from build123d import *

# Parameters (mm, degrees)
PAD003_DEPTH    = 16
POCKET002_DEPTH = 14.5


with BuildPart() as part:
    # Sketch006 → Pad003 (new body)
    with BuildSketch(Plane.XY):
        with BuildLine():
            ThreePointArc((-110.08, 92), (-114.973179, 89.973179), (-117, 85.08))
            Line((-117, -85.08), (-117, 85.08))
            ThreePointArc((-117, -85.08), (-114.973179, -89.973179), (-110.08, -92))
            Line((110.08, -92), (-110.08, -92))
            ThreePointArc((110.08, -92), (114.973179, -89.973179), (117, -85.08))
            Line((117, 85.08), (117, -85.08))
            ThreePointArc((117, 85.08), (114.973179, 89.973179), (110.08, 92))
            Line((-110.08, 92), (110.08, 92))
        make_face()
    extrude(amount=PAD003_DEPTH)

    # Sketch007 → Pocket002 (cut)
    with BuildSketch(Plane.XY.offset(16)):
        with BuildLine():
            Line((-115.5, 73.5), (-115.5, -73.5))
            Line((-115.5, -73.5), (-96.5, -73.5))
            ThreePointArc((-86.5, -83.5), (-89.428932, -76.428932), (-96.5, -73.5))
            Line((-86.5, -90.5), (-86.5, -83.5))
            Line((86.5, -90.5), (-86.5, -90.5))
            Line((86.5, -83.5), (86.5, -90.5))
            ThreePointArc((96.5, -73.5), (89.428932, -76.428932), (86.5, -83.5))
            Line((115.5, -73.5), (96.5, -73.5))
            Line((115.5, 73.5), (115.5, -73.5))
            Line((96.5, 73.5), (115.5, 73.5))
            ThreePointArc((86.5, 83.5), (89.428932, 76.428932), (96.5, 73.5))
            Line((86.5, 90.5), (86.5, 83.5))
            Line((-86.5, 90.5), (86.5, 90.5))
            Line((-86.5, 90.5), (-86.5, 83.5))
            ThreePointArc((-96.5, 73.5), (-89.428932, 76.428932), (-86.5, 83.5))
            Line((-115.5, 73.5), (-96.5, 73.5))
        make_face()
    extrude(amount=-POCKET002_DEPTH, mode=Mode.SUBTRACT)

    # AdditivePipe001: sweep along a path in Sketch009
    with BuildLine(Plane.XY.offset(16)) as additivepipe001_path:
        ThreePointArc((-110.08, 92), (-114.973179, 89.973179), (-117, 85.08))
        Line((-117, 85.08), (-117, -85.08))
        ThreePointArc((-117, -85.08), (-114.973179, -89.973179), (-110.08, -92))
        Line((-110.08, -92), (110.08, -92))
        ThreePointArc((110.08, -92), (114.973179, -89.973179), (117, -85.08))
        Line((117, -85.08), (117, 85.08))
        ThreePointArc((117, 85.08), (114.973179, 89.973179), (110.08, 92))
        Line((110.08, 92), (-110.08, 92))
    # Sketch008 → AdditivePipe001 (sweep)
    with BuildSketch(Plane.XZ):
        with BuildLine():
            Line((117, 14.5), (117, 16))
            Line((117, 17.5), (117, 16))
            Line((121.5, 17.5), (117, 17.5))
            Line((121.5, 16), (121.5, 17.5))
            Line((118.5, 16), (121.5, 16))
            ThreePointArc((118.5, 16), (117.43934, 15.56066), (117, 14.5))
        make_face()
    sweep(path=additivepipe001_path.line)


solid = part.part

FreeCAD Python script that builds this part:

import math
import FreeCAD as App
import Part
import Sketcher
from FreeCAD import Vector
Q = App.Units.Quantity

doc = App.newDocument("Part")
params = doc.addObject("Spreadsheet::Sheet", "Params")
for row, (alias, value) in enumerate([
    ("sketch1_radius", "6.92 mm"),
    ("pad1_length", "16 mm"),
    ("sketch2_radius", "9.999999 mm"),
    ("sketch2_width", "19 mm"),
    ("sketch2_width2", "173 mm"),
    ("sketch2_height", "147 mm"),
    ("sketch2_height2", "7 mm"),
    ("pocket1_length", "14.5 mm"),
    ("sketch3_radius", "1.500001 mm"),
    ("sketch3_width", "3 mm"),
    ("sketch4_radius", "6.92 mm"),
], start=1):
    params.set(f"A{row}", alias)
    params.set(f"B{row}", "=" + value)
    params.setAlias(f"B{row}", alias)

body = doc.addObject("PartDesign::Body", "Body")

sketch1 = body.newObject("Sketcher::SketchObject", "Sketch")
sketch1.AttachmentSupport = (doc.getObject("XY_Plane"), [""])
sketch1.MapMode = "FlatFace"
sketch1.addGeometry(Part.ArcOfCircle(Part.Circle(Vector(-110, 85, 0), Vector(0, 0, 1), 7), math.radians(90), math.radians(180)), False)
sketch1.addGeometry(Part.LineSegment(Vector(-117, 85, 0), Vector(-117, -85, 0)), False)
sketch1.addGeometry(Part.ArcOfCircle(Part.Circle(Vector(-110, -85, 0), Vector(0, 0, 1), 7), math.radians(180), math.radians(270)), False)
sketch1.addGeometry(Part.LineSegment(Vector(-110, -92, 0), Vector(110, -92, 0)), False)
sketch1.addGeometry(Part.ArcOfCircle(Part.Circle(Vector(110, -85, 0), Vector(0, 0, 1), 7), math.radians(-90), math.radians(0)), False)
sketch1.addGeometry(Part.LineSegment(Vector(117, -85, 0), Vector(117, 85, 0)), False)
sketch1.addGeometry(Part.ArcOfCircle(Part.Circle(Vector(110, 85, 0), Vector(0, 0, 1), 7), math.radians(0), math.radians(90)), False)
sketch1.addGeometry(Part.LineSegment(Vector(110, 92, 0), Vector(-110, 92, 0)), False)
sketch1.addConstraint(Sketcher.Constraint("Tangent", 0, 2, 1, 1))
sketch1.addConstraint(Sketcher.Constraint("Tangent", 1, 2, 2, 1))
sketch1.addConstraint(Sketcher.Constraint("Tangent", 2, 2, 3, 1))
sketch1.addConstraint(Sketcher.Constraint("Tangent", 3, 2, 4, 1))
sketch1.addConstraint(Sketcher.Constraint("Tangent", 4, 2, 5, 1))
sketch1.addConstraint(Sketcher.Constraint("Tangent", 5, 2, 6, 1))
sketch1.addConstraint(Sketcher.Constraint("Tangent", 6, 2, 7, 1))
sketch1.addConstraint(Sketcher.Constraint("Tangent", 7, 2, 0, 1))
sketch1.addConstraint(Sketcher.Constraint("Vertical", 1))
sketch1.addConstraint(Sketcher.Constraint("Horizontal", 3))
sketch1.addConstraint(Sketcher.Constraint("Vertical", 5))
sketch1.addConstraint(Sketcher.Constraint("Horizontal", 7))
sketch1.addConstraint(Sketcher.Constraint("Equal", 0, 2))
sketch1.addConstraint(Sketcher.Constraint("Equal", 2, 4))
sketch1.addConstraint(Sketcher.Constraint("Equal", 4, 6))
sketch1.addConstraint(Sketcher.Constraint("Symmetric", 0, 3, 4, 3, -1, 1))
sketch1.addConstraint(Sketcher.Constraint("Radius", 0, Q("6.92 mm")))
sketch1.addConstraint(Sketcher.Constraint("DistanceX", 0, 2, -1, 1, Q("117 mm")))
sketch1.addConstraint(Sketcher.Constraint("DistanceY", 2, 2, -1, 1, Q("92 mm")))
sketch1.setExpression("Constraints[16]", "Params.sketch1_radius")
pad1 = body.newObject("PartDesign::Pad", "Pad")
pad1.Profile = sketch1
pad1.setExpression("Length", "Params.pad1_length")

sketch2 = body.newObject("Sketcher::SketchObject", "Sketch001")
sketch2.AttachmentSupport = (doc.getObject("XY_Plane"), [""])
sketch2.MapMode = "FlatFace"
sketch2.AttachmentOffset = App.Placement(Vector(0, 0, 16), App.Rotation())
sketch2.addGeometry(Part.LineSegment(Vector(-116, 74, 0), Vector(-116, -74, 0)), False)
sketch2.addGeometry(Part.LineSegment(Vector(-116, -74, 0), Vector(-96, -74, 0)), False)
sketch2.addGeometry(Part.ArcOfCircle(Part.Circle(Vector(-96, -83, 0), Vector(0, 0, 1), 10), math.radians(0), math.radians(90)), False)
sketch2.addGeometry(Part.LineSegment(Vector(-86, -84, 0), Vector(-86, -90, 0)), False)
sketch2.addGeometry(Part.LineSegment(Vector(-86, -90, 0), Vector(86, -90, 0)), False)
sketch2.addGeometry(Part.LineSegment(Vector(86, -90, 0), Vector(86, -84, 0)), False)
sketch2.addGeometry(Part.ArcOfCircle(Part.Circle(Vector(96, -83, 0), Vector(0, 0, 1), 10), math.radians(90), math.radians(180)), False)
sketch2.addGeometry(Part.LineSegment(Vector(96, -74, 0), Vector(116, -74, 0)), False)
sketch2.addGeometry(Part.LineSegment(Vector(116, -74, 0), Vector(116, 74, 0)), False)
sketch2.addGeometry(Part.LineSegment(Vector(116, 74, 0), Vector(96, 74, 0)), False)
sketch2.addGeometry(Part.ArcOfCircle(Part.Circle(Vector(96, 83, 0), Vector(0, 0, 1), 10), math.radians(180), math.radians(270)), False)
sketch2.addGeometry(Part.LineSegment(Vector(86, 84, 0), Vector(86, 90, 0)), False)
sketch2.addGeometry(Part.LineSegment(Vector(86, 90, 0), Vector(-86, 90, 0)), False)
sketch2.addGeometry(Part.LineSegment(Vector(-86, 90, 0), Vector(-86, 84, 0)), False)
sketch2.addGeometry(Part.ArcOfCircle(Part.Circle(Vector(-96, 83, 0), Vector(0, 0, 1), 10), math.radians(-90), math.radians(0)), False)
sketch2.addGeometry(Part.LineSegment(Vector(-96, 74, 0), Vector(-116, 74, 0)), False)
sketch2.addConstraint(Sketcher.Constraint("Coincident", 0, 2, 1, 1))
sketch2.addConstraint(Sketcher.Constraint("Tangent", 1, 2, 2, 2))
sketch2.addConstraint(Sketcher.Constraint("Tangent", 2, 1, 3, 1))
sketch2.addConstraint(Sketcher.Constraint("Coincident", 3, 2, 4, 1))
sketch2.addConstraint(Sketcher.Constraint("Coincident", 4, 2, 5, 1))
sketch2.addConstraint(Sketcher.Constraint("Tangent", 5, 2, 6, 2))
sketch2.addConstraint(Sketcher.Constraint("Tangent", 6, 1, 7, 1))
sketch2.addConstraint(Sketcher.Constraint("Coincident", 7, 2, 8, 1))
sketch2.addConstraint(Sketcher.Constraint("Coincident", 8, 2, 9, 1))
sketch2.addConstraint(Sketcher.Constraint("Tangent", 9, 2, 10, 2))
sketch2.addConstraint(Sketcher.Constraint("Tangent", 10, 1, 11, 1))
sketch2.addConstraint(Sketcher.Constraint("Coincident", 11, 2, 12, 1))
sketch2.addConstraint(Sketcher.Constraint("Coincident", 12, 2, 13, 1))
sketch2.addConstraint(Sketcher.Constraint("Tangent", 13, 2, 14, 2))
sketch2.addConstraint(Sketcher.Constraint("Tangent", 14, 1, 15, 1))
sketch2.addConstraint(Sketcher.Constraint("Coincident", 15, 2, 0, 1))
sketch2.addConstraint(Sketcher.Constraint("Vertical", 0))
sketch2.addConstraint(Sketcher.Constraint("Horizontal", 1))
sketch2.addConstraint(Sketcher.Constraint("Vertical", 3))
sketch2.addConstraint(Sketcher.Constraint("Horizontal", 4))
sketch2.addConstraint(Sketcher.Constraint("Vertical", 5))
sketch2.addConstraint(Sketcher.Constraint("Horizontal", 7))
sketch2.addConstraint(Sketcher.Constraint("Vertical", 8))
sketch2.addConstraint(Sketcher.Constraint("Horizontal", 9))
sketch2.addConstraint(Sketcher.Constraint("Vertical", 11))
sketch2.addConstraint(Sketcher.Constraint("Horizontal", 12))
sketch2.addConstraint(Sketcher.Constraint("Vertical", 13))
sketch2.addConstraint(Sketcher.Constraint("Horizontal", 15))
sketch2.addConstraint(Sketcher.Constraint("Equal", 2, 6))
sketch2.addConstraint(Sketcher.Constraint("Equal", 6, 10))
sketch2.addConstraint(Sketcher.Constraint("Equal", 10, 14))
sketch2.addConstraint(Sketcher.Constraint("Symmetric", 2, 3, 10, 3, -1, 1))
sketch2.addConstraint(Sketcher.Constraint("Symmetric", 6, 3, 14, 3, -1, 1))
sketch2.addConstraint(Sketcher.Constraint("Symmetric", 2, 3, 6, 3, -2))
sketch2.addConstraint(Sketcher.Constraint("Equal", 1, 7))
sketch2.addConstraint(Sketcher.Constraint("Equal", 5, 11))
sketch2.addConstraint(Sketcher.Constraint("Radius", 2, Q("9.999999 mm")))
sketch2.addConstraint(Sketcher.Constraint("DistanceX", 1, 1, 1, 2, Q("19 mm")))
sketch2.addConstraint(Sketcher.Constraint("DistanceX", 4, 1, 4, 2, Q("173 mm")))
sketch2.addConstraint(Sketcher.Constraint("DistanceY", 0, 2, 0, 1, Q("147 mm")))
sketch2.addConstraint(Sketcher.Constraint("DistanceY", 3, 2, 3, 1, Q("7 mm")))
sketch2.setExpression("Constraints[36]", "Params.sketch2_radius")
sketch2.setExpression("Constraints[37]", "Params.sketch2_width")
sketch2.setExpression("Constraints[38]", "Params.sketch2_width2")
sketch2.setExpression("Constraints[39]", "Params.sketch2_height")
sketch2.setExpression("Constraints[40]", "Params.sketch2_height2")
pocket1 = body.newObject("PartDesign::Pocket", "Pocket")
pocket1.Profile = sketch2
pocket1.setExpression("Length", "Params.pocket1_length")

sketch3 = body.newObject("Sketcher::SketchObject", "Sketch002")
sketch3.AttachmentSupport = (doc.getObject("XZ_Plane"), [""])
sketch3.MapMode = "FlatFace"
sketch3.addGeometry(Part.LineSegment(Vector(117, 17.5, 0), Vector(117, 14.5, 0)), False)
sketch3.addGeometry(Part.ArcOfCircle(Part.Circle(Vector(118.5, 14.5, 0), Vector(0, 0, 1), 1.5), math.radians(90), math.radians(180)), False)
sketch3.addGeometry(Part.LineSegment(Vector(118.5, 16, 0), Vector(121.5, 16, 0)), False)
sketch3.addGeometry(Part.LineSegment(Vector(121.5, 16, 0), Vector(121.5, 17.5, 0)), False)
sketch3.addGeometry(Part.LineSegment(Vector(121.5, 17.5, 0), Vector(117, 17.5, 0)), False)
sketch3.addConstraint(Sketcher.Constraint("Tangent", 0, 2, 1, 2))
sketch3.addConstraint(Sketcher.Constraint("Tangent", 1, 1, 2, 1))
sketch3.addConstraint(Sketcher.Constraint("Coincident", 2, 2, 3, 1))
sketch3.addConstraint(Sketcher.Constraint("Coincident", 3, 2, 4, 1))
sketch3.addConstraint(Sketcher.Constraint("Coincident", 4, 2, 0, 1))
sketch3.addConstraint(Sketcher.Constraint("Vertical", 0))
sketch3.addConstraint(Sketcher.Constraint("Horizontal", 2))
sketch3.addConstraint(Sketcher.Constraint("Vertical", 3))
sketch3.addConstraint(Sketcher.Constraint("Horizontal", 4))
sketch3.addConstraint(Sketcher.Constraint("Equal", 2, 0))
sketch3.addConstraint(Sketcher.Constraint("Radius", 1, Q("1.500001 mm")))
sketch3.addConstraint(Sketcher.Constraint("DistanceX", 2, 1, 2, 2, Q("3 mm")))
sketch3.addConstraint(Sketcher.Constraint("DistanceX", -1, 1, 0, 2, Q("117 mm")))
sketch3.addConstraint(Sketcher.Constraint("DistanceY", -1, 1, 1, 1, Q("16 mm")))
sketch3.setExpression("Constraints[10]", "Params.sketch3_radius")
sketch3.setExpression("Constraints[11]", "Params.sketch3_width")

sketch4 = body.newObject("Sketcher::SketchObject", "Sketch003")
sketch4.AttachmentSupport = (doc.getObject("XY_Plane"), [""])
sketch4.MapMode = "FlatFace"
sketch4.AttachmentOffset = App.Placement(Vector(0, 0, 16), App.Rotation())
sketch4.addGeometry(Part.ArcOfCircle(Part.Circle(Vector(-110, 85, 0), Vector(0, 0, 1), 7), math.radians(90), math.radians(180)), False)
sketch4.addGeometry(Part.LineSegment(Vector(-117, 85, 0), Vector(-117, -85, 0)), False)
sketch4.addGeometry(Part.ArcOfCircle(Part.Circle(Vector(-110, -85, 0), Vector(0, 0, 1), 7), math.radians(180), math.radians(270)), False)
sketch4.addGeometry(Part.LineSegment(Vector(-110, -92, 0), Vector(110, -92, 0)), False)
sketch4.addGeometry(Part.ArcOfCircle(Part.Circle(Vector(110, -85, 0), Vector(0, 0, 1), 7), math.radians(-90), math.radians(0)), False)
sketch4.addGeometry(Part.LineSegment(Vector(117, -85, 0), Vector(117, 85, 0)), False)
sketch4.addGeometry(Part.ArcOfCircle(Part.Circle(Vector(110, 85, 0), Vector(0, 0, 1), 7), math.radians(0), math.radians(90)), False)
sketch4.addGeometry(Part.LineSegment(Vector(110, 92, 0), Vector(-110, 92, 0)), False)
sketch4.addConstraint(Sketcher.Constraint("Tangent", 0, 2, 1, 1))
sketch4.addConstraint(Sketcher.Constraint("Tangent", 1, 2, 2, 1))
sketch4.addConstraint(Sketcher.Constraint("Tangent", 2, 2, 3, 1))
sketch4.addConstraint(Sketcher.Constraint("Tangent", 3, 2, 4, 1))
sketch4.addConstraint(Sketcher.Constraint("Tangent", 4, 2, 5, 1))
sketch4.addConstraint(Sketcher.Constraint("Tangent", 5, 2, 6, 1))
sketch4.addConstraint(Sketcher.Constraint("Tangent", 6, 2, 7, 1))
sketch4.addConstraint(Sketcher.Constraint("Tangent", 7, 2, 0, 1))
sketch4.addConstraint(Sketcher.Constraint("Vertical", 1))
sketch4.addConstraint(Sketcher.Constraint("Horizontal", 3))
sketch4.addConstraint(Sketcher.Constraint("Vertical", 5))
sketch4.addConstraint(Sketcher.Constraint("Horizontal", 7))
sketch4.addConstraint(Sketcher.Constraint("Equal", 0, 2))
sketch4.addConstraint(Sketcher.Constraint("Equal", 2, 4))
sketch4.addConstraint(Sketcher.Constraint("Equal", 4, 6))
sketch4.addConstraint(Sketcher.Constraint("Symmetric", 0, 3, 4, 3, -1, 1))
sketch4.addConstraint(Sketcher.Constraint("Radius", 0, Q("6.92 mm")))
sketch4.addConstraint(Sketcher.Constraint("DistanceX", 0, 2, -1, 1, Q("117 mm")))
sketch4.addConstraint(Sketcher.Constraint("DistanceY", 2, 2, -1, 1, Q("92 mm")))
sketch4.setExpression("Constraints[16]", "Params.sketch4_radius")
doc.recompute()

additivepipe = body.newObject("PartDesign::AdditivePipe", "AdditivePipe")
additivepipe.Profile = sketch3
additivepipe.Spine = (sketch4, ["Edge1", "Edge2", "Edge3", "Edge4", "Edge5", "Edge6", "Edge7", "Edge8"])

doc.recompute()
